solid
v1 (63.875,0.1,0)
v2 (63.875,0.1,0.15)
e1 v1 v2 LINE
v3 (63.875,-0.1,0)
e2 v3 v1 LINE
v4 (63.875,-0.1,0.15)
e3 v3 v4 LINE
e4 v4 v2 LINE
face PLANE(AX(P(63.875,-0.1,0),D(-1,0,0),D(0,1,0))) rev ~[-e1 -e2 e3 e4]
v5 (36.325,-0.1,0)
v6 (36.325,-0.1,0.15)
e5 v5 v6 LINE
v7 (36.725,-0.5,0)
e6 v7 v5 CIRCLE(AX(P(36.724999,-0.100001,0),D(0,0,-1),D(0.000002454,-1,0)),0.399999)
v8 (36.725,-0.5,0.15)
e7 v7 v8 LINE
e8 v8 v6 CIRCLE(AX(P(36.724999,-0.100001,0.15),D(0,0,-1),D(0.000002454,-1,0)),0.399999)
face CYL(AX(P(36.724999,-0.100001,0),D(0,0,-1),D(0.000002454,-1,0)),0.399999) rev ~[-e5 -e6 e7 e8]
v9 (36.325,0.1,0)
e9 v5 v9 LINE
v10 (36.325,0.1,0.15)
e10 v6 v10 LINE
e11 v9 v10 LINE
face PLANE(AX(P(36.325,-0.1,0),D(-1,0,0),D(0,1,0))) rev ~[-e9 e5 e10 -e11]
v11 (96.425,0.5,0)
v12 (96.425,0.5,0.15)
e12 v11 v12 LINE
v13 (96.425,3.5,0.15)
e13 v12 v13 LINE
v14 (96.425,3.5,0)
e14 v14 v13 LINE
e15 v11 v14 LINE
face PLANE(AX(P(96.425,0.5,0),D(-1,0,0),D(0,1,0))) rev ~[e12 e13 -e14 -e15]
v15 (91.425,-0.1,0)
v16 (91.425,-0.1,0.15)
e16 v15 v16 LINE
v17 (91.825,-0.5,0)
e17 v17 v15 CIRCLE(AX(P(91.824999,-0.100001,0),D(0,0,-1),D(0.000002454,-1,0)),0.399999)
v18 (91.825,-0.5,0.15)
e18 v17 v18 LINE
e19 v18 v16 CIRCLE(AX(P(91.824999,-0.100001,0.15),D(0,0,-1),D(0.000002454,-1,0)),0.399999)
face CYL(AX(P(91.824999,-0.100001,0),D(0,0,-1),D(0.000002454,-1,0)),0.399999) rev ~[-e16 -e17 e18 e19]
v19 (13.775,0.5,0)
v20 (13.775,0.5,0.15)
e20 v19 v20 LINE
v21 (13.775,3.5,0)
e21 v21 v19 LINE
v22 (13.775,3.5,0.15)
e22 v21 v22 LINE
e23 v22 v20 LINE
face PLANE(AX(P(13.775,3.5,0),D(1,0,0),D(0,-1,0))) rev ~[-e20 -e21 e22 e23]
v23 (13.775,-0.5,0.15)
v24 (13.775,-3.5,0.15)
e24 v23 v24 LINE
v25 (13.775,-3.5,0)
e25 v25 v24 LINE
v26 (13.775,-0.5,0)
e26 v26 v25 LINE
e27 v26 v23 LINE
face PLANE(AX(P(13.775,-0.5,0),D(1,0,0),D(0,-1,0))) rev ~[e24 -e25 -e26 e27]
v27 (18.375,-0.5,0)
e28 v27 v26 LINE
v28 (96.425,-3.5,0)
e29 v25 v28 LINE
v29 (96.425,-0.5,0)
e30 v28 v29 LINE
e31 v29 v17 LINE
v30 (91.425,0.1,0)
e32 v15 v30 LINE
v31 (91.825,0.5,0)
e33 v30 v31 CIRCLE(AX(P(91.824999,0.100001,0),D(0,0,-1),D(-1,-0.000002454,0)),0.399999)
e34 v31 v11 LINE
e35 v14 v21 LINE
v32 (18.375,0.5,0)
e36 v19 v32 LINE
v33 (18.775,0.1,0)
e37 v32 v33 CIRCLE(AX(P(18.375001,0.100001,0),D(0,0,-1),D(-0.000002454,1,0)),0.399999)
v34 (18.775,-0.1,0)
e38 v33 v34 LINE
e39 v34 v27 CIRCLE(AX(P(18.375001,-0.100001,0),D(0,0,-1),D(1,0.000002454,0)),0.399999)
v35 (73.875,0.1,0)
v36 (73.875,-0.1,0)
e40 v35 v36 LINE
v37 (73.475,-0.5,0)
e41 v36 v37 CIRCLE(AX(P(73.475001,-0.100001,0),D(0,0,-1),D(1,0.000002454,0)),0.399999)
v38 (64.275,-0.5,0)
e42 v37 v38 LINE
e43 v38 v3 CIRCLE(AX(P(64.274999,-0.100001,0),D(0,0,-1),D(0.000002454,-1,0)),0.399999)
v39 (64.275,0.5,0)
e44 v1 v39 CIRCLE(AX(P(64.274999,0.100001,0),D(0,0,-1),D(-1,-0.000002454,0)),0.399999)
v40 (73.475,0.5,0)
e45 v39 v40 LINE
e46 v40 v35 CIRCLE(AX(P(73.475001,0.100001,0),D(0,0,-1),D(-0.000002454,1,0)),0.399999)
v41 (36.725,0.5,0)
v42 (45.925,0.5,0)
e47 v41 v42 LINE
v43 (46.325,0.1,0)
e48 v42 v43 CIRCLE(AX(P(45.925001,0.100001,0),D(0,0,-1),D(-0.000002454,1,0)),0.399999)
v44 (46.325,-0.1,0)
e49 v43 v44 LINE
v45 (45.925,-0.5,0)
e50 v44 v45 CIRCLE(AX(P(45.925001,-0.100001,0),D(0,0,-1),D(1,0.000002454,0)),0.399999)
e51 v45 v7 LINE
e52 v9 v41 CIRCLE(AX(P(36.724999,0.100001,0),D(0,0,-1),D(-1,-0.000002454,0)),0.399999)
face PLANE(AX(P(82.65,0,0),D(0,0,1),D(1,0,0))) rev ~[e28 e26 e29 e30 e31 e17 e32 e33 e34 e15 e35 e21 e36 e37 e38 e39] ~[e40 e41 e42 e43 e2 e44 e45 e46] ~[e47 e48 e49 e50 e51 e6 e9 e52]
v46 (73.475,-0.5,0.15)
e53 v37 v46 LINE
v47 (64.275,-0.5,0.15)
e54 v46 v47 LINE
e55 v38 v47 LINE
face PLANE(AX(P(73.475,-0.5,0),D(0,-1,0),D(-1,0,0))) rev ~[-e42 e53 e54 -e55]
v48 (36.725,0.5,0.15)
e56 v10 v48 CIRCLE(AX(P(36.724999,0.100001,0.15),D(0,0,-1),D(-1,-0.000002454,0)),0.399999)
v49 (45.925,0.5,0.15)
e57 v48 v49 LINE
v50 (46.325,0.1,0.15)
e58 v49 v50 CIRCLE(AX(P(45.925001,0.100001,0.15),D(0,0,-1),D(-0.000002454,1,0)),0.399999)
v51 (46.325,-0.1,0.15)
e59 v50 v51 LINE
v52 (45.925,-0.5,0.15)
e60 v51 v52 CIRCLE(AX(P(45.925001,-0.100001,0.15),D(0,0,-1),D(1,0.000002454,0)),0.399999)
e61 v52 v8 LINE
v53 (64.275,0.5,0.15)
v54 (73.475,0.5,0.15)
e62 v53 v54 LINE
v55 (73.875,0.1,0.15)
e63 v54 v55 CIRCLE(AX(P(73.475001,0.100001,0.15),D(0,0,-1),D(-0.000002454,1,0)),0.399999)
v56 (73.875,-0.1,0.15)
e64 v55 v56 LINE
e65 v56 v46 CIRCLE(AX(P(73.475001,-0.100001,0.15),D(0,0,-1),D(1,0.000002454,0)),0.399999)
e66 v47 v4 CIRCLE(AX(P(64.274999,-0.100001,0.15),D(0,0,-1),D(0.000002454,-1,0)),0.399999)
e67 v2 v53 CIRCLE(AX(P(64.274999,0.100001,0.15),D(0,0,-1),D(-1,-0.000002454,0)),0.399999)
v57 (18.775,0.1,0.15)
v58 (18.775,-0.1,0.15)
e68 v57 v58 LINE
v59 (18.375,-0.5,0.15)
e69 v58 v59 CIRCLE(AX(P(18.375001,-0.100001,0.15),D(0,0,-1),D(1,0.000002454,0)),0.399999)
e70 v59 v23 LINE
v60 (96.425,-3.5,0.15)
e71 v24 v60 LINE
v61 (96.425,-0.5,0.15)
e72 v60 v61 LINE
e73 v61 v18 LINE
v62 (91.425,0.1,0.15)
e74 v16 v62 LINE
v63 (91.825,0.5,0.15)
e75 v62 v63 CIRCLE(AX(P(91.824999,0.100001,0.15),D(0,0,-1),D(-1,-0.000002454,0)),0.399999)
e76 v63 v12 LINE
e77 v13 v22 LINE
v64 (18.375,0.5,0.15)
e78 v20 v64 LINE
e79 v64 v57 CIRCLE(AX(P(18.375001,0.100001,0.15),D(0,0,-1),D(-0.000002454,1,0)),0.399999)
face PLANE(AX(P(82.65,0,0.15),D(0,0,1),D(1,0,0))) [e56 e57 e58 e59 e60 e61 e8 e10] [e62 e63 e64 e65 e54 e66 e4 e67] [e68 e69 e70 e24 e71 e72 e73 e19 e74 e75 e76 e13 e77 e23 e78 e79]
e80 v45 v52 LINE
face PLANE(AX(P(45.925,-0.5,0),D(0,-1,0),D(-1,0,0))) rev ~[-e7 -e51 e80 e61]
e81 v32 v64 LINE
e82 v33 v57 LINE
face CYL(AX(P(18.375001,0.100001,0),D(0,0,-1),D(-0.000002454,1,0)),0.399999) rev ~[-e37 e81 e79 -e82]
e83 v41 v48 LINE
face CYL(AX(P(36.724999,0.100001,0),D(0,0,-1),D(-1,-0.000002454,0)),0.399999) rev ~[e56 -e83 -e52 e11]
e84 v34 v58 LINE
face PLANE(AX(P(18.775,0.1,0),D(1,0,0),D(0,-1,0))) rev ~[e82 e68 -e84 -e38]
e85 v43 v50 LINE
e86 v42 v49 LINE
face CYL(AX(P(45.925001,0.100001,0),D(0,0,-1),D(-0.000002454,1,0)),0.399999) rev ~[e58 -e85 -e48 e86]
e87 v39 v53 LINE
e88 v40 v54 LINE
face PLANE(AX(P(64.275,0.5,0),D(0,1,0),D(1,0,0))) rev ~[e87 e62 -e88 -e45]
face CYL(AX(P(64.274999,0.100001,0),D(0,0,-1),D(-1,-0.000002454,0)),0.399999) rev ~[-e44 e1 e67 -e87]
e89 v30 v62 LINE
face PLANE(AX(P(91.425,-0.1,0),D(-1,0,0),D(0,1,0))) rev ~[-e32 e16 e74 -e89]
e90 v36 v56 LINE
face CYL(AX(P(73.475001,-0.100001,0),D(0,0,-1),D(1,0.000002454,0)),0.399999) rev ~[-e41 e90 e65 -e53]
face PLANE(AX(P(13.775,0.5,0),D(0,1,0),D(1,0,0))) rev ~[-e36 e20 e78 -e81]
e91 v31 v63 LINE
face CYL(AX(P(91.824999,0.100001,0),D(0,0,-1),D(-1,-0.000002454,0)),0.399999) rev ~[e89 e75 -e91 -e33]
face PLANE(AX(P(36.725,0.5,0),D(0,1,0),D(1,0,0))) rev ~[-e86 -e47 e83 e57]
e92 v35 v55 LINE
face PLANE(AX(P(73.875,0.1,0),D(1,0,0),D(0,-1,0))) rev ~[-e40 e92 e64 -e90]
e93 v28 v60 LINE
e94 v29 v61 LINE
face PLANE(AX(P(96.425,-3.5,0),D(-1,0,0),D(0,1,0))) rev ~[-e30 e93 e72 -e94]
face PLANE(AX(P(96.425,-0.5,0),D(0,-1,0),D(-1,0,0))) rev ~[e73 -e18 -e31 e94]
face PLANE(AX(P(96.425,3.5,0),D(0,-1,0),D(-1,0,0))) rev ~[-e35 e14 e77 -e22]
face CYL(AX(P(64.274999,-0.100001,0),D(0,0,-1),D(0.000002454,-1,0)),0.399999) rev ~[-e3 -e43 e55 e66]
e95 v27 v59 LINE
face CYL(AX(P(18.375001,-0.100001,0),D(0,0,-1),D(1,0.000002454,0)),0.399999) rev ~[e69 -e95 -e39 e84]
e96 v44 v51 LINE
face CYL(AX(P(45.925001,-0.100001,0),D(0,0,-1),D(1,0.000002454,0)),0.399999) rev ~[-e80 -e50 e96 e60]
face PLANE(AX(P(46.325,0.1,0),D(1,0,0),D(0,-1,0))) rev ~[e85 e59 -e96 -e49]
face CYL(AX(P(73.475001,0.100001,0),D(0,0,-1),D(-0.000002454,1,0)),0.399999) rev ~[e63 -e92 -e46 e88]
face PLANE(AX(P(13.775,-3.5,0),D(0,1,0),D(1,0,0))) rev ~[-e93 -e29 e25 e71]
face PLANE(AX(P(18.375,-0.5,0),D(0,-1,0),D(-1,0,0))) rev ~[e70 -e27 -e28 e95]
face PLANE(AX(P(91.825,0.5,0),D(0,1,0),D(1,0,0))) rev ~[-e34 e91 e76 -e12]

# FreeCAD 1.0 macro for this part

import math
import FreeCAD as App
import Part
import Sketcher

doc = App.newDocument("Part")
body = doc.addObject("PartDesign::Body", "Body")

# Sketch on XY plane
sketch1 = body.newObject("Sketcher::SketchObject", "Sketch")
sketch1.AttachmentSupport = (doc.getObject("XY_Plane"), [""])
sketch1.MapMode = "FlatFace"
sketch1.addGeometry([
    Part.LineSegment(App.Vector(96.42, -3.5, 0), App.Vector(96.42, -0.5, 0)),  # 0
    Part.LineSegment(App.Vector(96.42, -0.5, 0), App.Vector(91.83, -0.5, 0)),  # 1
    Part.ArcOfCircle(Part.Circle(App.Vector(91.82, -0.1, 0), App.Vector(0, 0, 1), 0.4), math.radians(180), math.radians(270)),  # 2
    Part.LineSegment(App.Vector(91.42, -0.1, 0), App.Vector(91.42, 0.1, 0)),  # 3
    Part.ArcOfCircle(Part.Circle(App.Vector(91.82, 0.1, 0), App.Vector(0, 0, 1), 0.4), math.radians(90), math.radians(180)),  # 4
    Part.LineSegment(App.Vector(91.83, 0.5, 0), App.Vector(96.42, 0.5, 0)),  # 5
    Part.LineSegment(App.Vector(96.42, 0.5, 0), App.Vector(96.42, 3.5, 0)),  # 6
    Part.LineSegment(App.Vector(96.42, 3.5, 0), App.Vector(13.78, 3.5, 0)),  # 7
    Part.LineSegment(App.Vector(13.78, 3.5, 0), App.Vector(13.78, 0.5, 0)),  # 8
    Part.LineSegment(App.Vector(13.78, 0.5, 0), App.Vector(18.38, 0.5, 0)),  # 9
    Part.ArcOfCircle(Part.Circle(App.Vector(18.38, 0.1, 0), App.Vector(0, 0, 1), 0.4), math.radians(0), math.radians(90)),  # 10
    Part.LineSegment(App.Vector(18.77, 0.1, 0), App.Vector(18.77, -0.1, 0)),  # 11
    Part.ArcOfCircle(Part.Circle(App.Vector(18.38, -0.1, 0), App.Vector(0, 0, 1), 0.4), math.radians(-90), math.radians(0)),  # 12
    Part.LineSegment(App.Vector(18.38, -0.5, 0), App.Vector(13.78, -0.5, 0)),  # 13
    Part.LineSegment(App.Vector(13.78, -0.5, 0), App.Vector(13.78, -3.5, 0)),  # 14
    Part.LineSegment(App.Vector(13.78, -3.5, 0), App.Vector(96.42, -3.5, 0)),  # 15
    Part.LineSegment(App.Vector(73.47, -0.5, 0), App.Vector(64.28, -0.5, 0)),  # 16
    Part.ArcOfCircle(Part.Circle(App.Vector(64.27, -0.1, 0), App.Vector(0, 0, 1), 0.4), math.radians(180), math.radians(270)),  # 17
    Part.LineSegment(App.Vector(63.88, -0.1, 0), App.Vector(63.88, 0.1, 0)),  # 18
    Part.ArcOfCircle(Part.Circle(App.Vector(64.27, 0.1, 0), App.Vector(0, 0, 1), 0.4), math.radians(90), math.radians(180)),  # 19
    Part.LineSegment(App.Vector(64.28, 0.5, 0), App.Vector(73.47, 0.5, 0)),  # 20
    Part.ArcOfCircle(Part.Circle(App.Vector(73.48, 0.1, 0), App.Vector(0, 0, 1), 0.4), math.radians(0), math.radians(90)),  # 21
    Part.LineSegment(App.Vector(73.88, 0.1, 0), App.Vector(73.88, -0.1, 0)),  # 22
    Part.ArcOfCircle(Part.Circle(App.Vector(73.48, -0.1, 0), App.Vector(0, 0, 1), 0.4), math.radians(-90), math.radians(0)),  # 23
    Part.ArcOfCircle(Part.Circle(App.Vector(36.72, 0.1, 0), App.Vector(0, 0, 1), 0.4), math.radians(90), math.radians(180)),  # 24
    Part.LineSegment(App.Vector(36.73, 0.5, 0), App.Vector(45.92, 0.5, 0)),  # 25
    Part.ArcOfCircle(Part.Circle(App.Vector(45.93, 0.1, 0), App.Vector(0, 0, 1), 0.4), math.radians(0), math.radians(90)),  # 26
    Part.LineSegment(App.Vector(46.33, 0.1, 0), App.Vector(46.33, -0.1, 0)),  # 27
    Part.ArcOfCircle(Part.Circle(App.Vector(45.93, -0.1, 0), App.Vector(0, 0, 1), 0.4), math.radians(-90), math.radians(0)),  # 28
    Part.LineSegment(App.Vector(45.92, -0.5, 0), App.Vector(36.73, -0.5, 0)),  # 29
    Part.ArcOfCircle(Part.Circle(App.Vector(36.72, -0.1, 0), App.Vector(0, 0, 1), 0.4), math.radians(180), math.radians(270)),  # 30
    Part.LineSegment(App.Vector(36.33, -0.1, 0), App.Vector(36.33, 0.1, 0)),  # 31
], False)
sketch1.addConstraint([
    Sketcher.Constraint("Coincident", 0, 2, 1, 1),
    Sketcher.Constraint("Coincident", 1, 2, 2, 2),
    Sketcher.Constraint("Coincident", 2, 1, 3, 1),
    Sketcher.Constraint("Coincident", 3, 2, 4, 2),
    Sketcher.Constraint("Coincident", 4, 1, 5, 1),
    Sketcher.Constraint("Coincident", 5, 2, 6, 1),
    Sketcher.Constraint("Coincident", 6, 2, 7, 1),
    Sketcher.Constraint("Coincident", 7, 2, 8, 1),
    Sketcher.Constraint("Coincident", 8, 2, 9, 1),
    Sketcher.Constraint("Coincident", 9, 2, 10, 2),
    Sketcher.Constraint("Coincident", 10, 1, 11, 1),
    Sketcher.Constraint("Coincident", 11, 2, 12, 2),
    Sketcher.Constraint("Coincident", 12, 1, 13, 1),
    Sketcher.Constraint("Coincident", 13, 2, 14, 1),
    Sketcher.Constraint("Coincident", 14, 2, 15, 1),
    Sketcher.Constraint("Coincident", 15, 2, 0, 1),
    Sketcher.Constraint("Coincident", 16, 2, 17, 2),
    Sketcher.Constraint("Coincident", 17, 1, 18, 1),
    Sketcher.Constraint("Coincident", 18, 2, 19, 2),
    Sketcher.Constraint("Coincident", 19, 1, 20, 1),
    Sketcher.Constraint("Coincident", 20, 2, 21, 2),
    Sketcher.Constraint("Coincident", 21, 1, 22, 1),
    Sketcher.Constraint("Coincident", 22, 2, 23, 2),
    Sketcher.Constraint("Coincident", 23, 1, 16, 1),
    Sketcher.Constraint("Coincident", 24, 1, 25, 1),
    Sketcher.Constraint("Coincident", 25, 2, 26, 2),
    Sketcher.Constraint("Coincident", 26, 1, 27, 1),
    Sketcher.Constraint("Coincident", 27, 2, 28, 2),
    Sketcher.Constraint("Coincident", 28, 1, 29, 1),
    Sketcher.Constraint("Coincident", 29, 2, 30, 2),
    Sketcher.Constraint("Coincident", 30, 1, 31, 1),
    Sketcher.Constraint("Coincident", 31, 2, 24, 2),
    Sketcher.Constraint("Vertical", 0),
    Sketcher.Constraint("Horizontal", 1),
    Sketcher.Constraint("Vertical", 3),
    Sketcher.Constraint("Horizontal", 5),
    Sketcher.Constraint("Vertical", 6),
    Sketcher.Constraint("Horizontal", 7),
    Sketcher.Constraint("Vertical", 8),
    Sketcher.Constraint("Horizontal", 9),
    Sketcher.Constraint("Vertical", 11),
    Sketcher.Constraint("Horizontal", 13),
    Sketcher.Constraint("Vertical", 14),
    Sketcher.Constraint("Horizontal", 15),
    Sketcher.Constraint("Horizontal", 16),
    Sketcher.Constraint("Vertical", 18),
    Sketcher.Constraint("Horizontal", 20),
    Sketcher.Constraint("Vertical", 22),
    Sketcher.Constraint("Horizontal", 25),
    Sketcher.Constraint("Vertical", 27),
    Sketcher.Constraint("Horizontal", 29),
    Sketcher.Constraint("Vertical", 31),
    Sketcher.Constraint("Equal", 2, 4),
    Sketcher.Constraint("Equal", 4, 10),
    Sketcher.Constraint("Equal", 10, 12),
    Sketcher.Constraint("Equal", 12, 17),
    Sketcher.Constraint("Equal", 17, 19),
    Sketcher.Constraint("Equal", 19, 21),
    Sketcher.Constraint("Equal", 21, 23),
    Sketcher.Constraint("Equal", 23, 24),
    Sketcher.Constraint("Equal", 24, 26),
    Sketcher.Constraint("Equal", 26, 28),
    Sketcher.Constraint("Equal", 28, 30),
    Sketcher.Constraint("Symmetric", 1, 2, 4, 1, -1),
    Sketcher.Constraint("Symmetric", 9, 2, 12, 1, -1),
    Sketcher.Constraint("Symmetric", 7, 2, 14, 2, -1),
    Sketcher.Constraint("Symmetric", 16, 2, 19, 1, -1),
    Sketcher.Constraint("Symmetric", 25, 2, 28, 1, -1),
    Sketcher.Constraint("Horizontal", 4, 3, 10, 3),
    Sketcher.Constraint("Horizontal", 12, 3, 17, 3),
    Sketcher.Constraint("Horizontal", 21, 3, 24, 3),
    Sketcher.Constraint("Horizontal", 30, 3, 2, 1),
    Sketcher.Constraint("Horizontal", 26, 3, 3, 2),
    Sketcher.Constraint("Horizontal", 3, 2, 10, 1),
    Sketcher.Constraint("Horizontal", 2, 1, 11, 2),
    Sketcher.Constraint("Horizontal", 11, 2, 17, 1),
    Sketcher.Constraint("Horizontal", 10, 1, 18, 2),
    Sketcher.Constraint("Horizontal", 18, 2, 21, 1),
    Sketcher.Constraint("Horizontal", 17, 1, 22, 2),
    Sketcher.Constraint("Horizontal", 21, 1, 26, 1),
    Sketcher.Constraint("Horizontal", 22, 2, 27, 2),
    Sketcher.Constraint("Horizontal", 27, 2, 30, 1),
    Sketcher.Constraint("Horizontal", 26, 1, 31, 2),
    Sketcher.Constraint("Vertical", 4, 3, 1, 2),
    Sketcher.Constraint("Vertical", 0, 2, 5, 2),
    Sketcher.Constraint("Vertical", 12, 3, 9, 2),
    Sketcher.Constraint("Vertical", 19, 3, 16, 2),
    Sketcher.Constraint("Vertical", 23, 3, 20, 2),
    Sketcher.Constraint("Vertical", 20, 2, 23, 1),
    Sketcher.Constraint("Vertical", 30, 3, 24, 1),
    Sketcher.Constraint("Vertical", 28, 3, 25, 2),
    Sketcher.Constraint("Vertical", 24, 1, 29, 2),
    Sketcher.Constraint("Equal", 5, 9),
    Sketcher.Constraint("Equal", 20, 25),
    Sketcher.Constraint("Radius", 2, 0.399999),
    Sketcher.Constraint("DistanceY", 0, 1, 0, 2, 3.0),
    Sketcher.Constraint("DistanceX", 1, 2, 1, 1, 4.6),
    Sketcher.Constraint("DistanceX", 16, 2, 16, 1, 9.2),
    Sketcher.Constraint("DistanceY", 3, 1, 3, 2, 0.2),
    Sketcher.Constraint("DistanceX", 7, 2, 7, 1, 82.65),
    Sketcher.Constraint("DistanceX", 12, 3, 17, 3, 45.899998),
    Sketcher.Constraint("DistanceX", 10, 3, 24, 3, 18.349998),
    Sketcher.Constraint("DistanceX", -1, 1, 2, 3, 91.824999),
])
pad1 = body.newObject("PartDesign::Pad", "Pad")
pad1.Profile = sketch1
pad1.Length = 0.15

doc.recompute()
